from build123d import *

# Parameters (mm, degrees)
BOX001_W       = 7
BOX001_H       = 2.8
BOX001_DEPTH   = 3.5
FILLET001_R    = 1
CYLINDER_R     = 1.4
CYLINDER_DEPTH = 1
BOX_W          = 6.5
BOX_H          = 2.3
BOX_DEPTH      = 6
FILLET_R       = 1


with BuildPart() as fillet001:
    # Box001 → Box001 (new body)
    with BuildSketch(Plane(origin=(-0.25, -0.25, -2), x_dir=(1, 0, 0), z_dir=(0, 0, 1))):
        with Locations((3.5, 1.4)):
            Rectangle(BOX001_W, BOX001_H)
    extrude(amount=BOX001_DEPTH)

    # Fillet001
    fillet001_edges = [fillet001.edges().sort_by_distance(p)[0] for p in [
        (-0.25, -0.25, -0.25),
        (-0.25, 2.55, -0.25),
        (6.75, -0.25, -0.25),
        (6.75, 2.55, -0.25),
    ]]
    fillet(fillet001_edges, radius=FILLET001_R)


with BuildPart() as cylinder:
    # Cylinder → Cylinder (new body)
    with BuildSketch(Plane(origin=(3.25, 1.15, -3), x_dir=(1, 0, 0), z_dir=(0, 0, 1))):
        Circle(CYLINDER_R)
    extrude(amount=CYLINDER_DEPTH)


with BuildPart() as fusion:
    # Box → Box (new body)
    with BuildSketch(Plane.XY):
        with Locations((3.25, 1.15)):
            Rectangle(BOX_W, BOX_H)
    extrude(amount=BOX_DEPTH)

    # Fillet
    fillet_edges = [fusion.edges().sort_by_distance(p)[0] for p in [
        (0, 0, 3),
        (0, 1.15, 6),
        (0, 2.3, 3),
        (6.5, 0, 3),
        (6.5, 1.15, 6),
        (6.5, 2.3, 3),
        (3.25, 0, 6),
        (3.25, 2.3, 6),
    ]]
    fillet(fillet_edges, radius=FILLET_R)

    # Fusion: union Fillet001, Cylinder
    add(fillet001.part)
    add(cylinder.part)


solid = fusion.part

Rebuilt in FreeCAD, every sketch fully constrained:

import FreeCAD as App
import Part
import Sketcher

V = App.Vector
Q = App.Units.Quantity


def edges_at(feature, points):
    """Names of the edges that pass closest to the given points."""
    edges = feature.Shape.Edges
    near = lambda p: min(range(len(edges)), key=lambda i: edges[i].distToShape(Part.Vertex(*p))[0])
    return sorted({f"Edge{near(p) + 1}" for p in points})

doc = App.newDocument("Part")
body = doc.addObject("PartDesign::Body", "Body")

sketch1 = body.newObject("Sketcher::SketchObject", "Sketch")
sketch1.AttachmentSupport = (doc.getObject("XY_Plane"), [""])
sketch1.MapMode = "FlatFace"
sketch1.AttachmentOffset = App.Placement(V(0, 0, -2), App.Rotation())
sketch1.addGeometry([
    Part.LineSegment(V(-0.2, 2.5, 0), V(-0.2, -0.2, 0)),
    Part.LineSegment(V(-0.2, -0.2, 0), V(6.8, -0.2, 0)),
    Part.LineSegment(V(6.8, -0.2, 0), V(6.8, 2.5, 0)),
    Part.LineSegment(V(6.8, 2.5, 0), V(-0.2, 2.5, 0)),
], False)
sketch1.addConstraint([
    Sketcher.Constraint("Coincident", 0, 2, 1, 1),
    Sketcher.Constraint("Coincident", 1, 2, 2, 1),
    Sketcher.Constraint("Coincident", 2, 2, 3, 1),
    Sketcher.Constraint("Coincident", 3, 2, 0, 1),
    Sketcher.Constraint("Vertical", 0),
    Sketcher.Constraint("Horizontal", 1),
    Sketcher.Constraint("Vertical", 2),
    Sketcher.Constraint("Horizontal", 3),
    Sketcher.Constraint("DistanceX", 1, 1, 1, 2, Q("7 mm")),
    Sketcher.Constraint("DistanceY", 0, 2, 0, 1, Q("2.8 mm")),
    Sketcher.Constraint("DistanceX", 0, 2, -1, 1, Q("0.25 mm")),
    Sketcher.Constraint("DistanceY", 0, 2, -1, 1, Q("0.25 mm")),
])
pad1 = body.newObject("PartDesign::Pad", "Pad")
pad1.Profile = sketch1
pad1.Length = 3.5
doc.recompute()

fillet = body.newObject("PartDesign::Fillet", "Fillet")
fillet.Base = (pad1, edges_at(pad1, [
    (-0.25, -0.25, -0.25),
    (-0.25, 2.55, -0.25),
    (6.75, -0.25, -0.25),
    (6.75, 2.55, -0.25),
]))
fillet.Radius = 1
body2 = doc.addObject("PartDesign::Body", "Body001")

sketch2 = body2.newObject("Sketcher::SketchObject", "Sketch001")
sketch2.AttachmentSupport = (doc.getObject("XY_Plane001"), [""])
sketch2.MapMode = "FlatFace"
sketch2.AttachmentOffset = App.Placement(V(0, 0, -3), App.Rotation())
sketch2.addGeometry(Part.Circle(V(3.2, 1.1, 0), V(0, 0, 1), 1.4), False)
sketch2.addConstraint([
    Sketcher.Constraint("Diameter", 0, Q("2.8 mm")),
    Sketcher.Constraint("DistanceX", -1, 1, 0, 3, Q("3.25 mm")),
    Sketcher.Constraint("DistanceY", -1, 1, 0, 3, Q("1.15 mm")),
])
pad2 = body2.newObject("PartDesign::Pad", "Pad001")
pad2.Profile = sketch2
pad2.Length = 1
body3 = doc.addObject("PartDesign::Body", "Body002")

sketch3 = body3.newObject("Sketcher::SketchObject", "Sketch002")
sketch3.AttachmentSupport = (doc.getObject("XY_Plane002"), [""])
sketch3.MapMode = "FlatFace"
sketch3.addGeometry([
    Part.LineSegment(V(0, 2.3, 0), V(0, 0, 0)),
    Part.LineSegment(V(0, 0, 0), V(6.5, 0, 0)),
    Part.LineSegment(V(6.5, 0, 0), V(6.5, 2.3, 0)),
    Part.LineSegment(V(6.5, 2.3, 0), V(0, 2.3, 0)),
], False)
sketch3.addConstraint([
    Sketcher.Constraint("Coincident", 0, 2, 1, 1),
    Sketcher.Constraint("Coincident", 1, 2, 2, 1),
    Sketcher.Constraint("Coincident", 2, 2, 3, 1),
    Sketcher.Constraint("Coincident", 3, 2, 0, 1),
    Sketcher.Constraint("Vertical", 0),
    Sketcher.Constraint("Horizontal", 1),
    Sketcher.Constraint("Vertical", 2),
    Sketcher.Constraint("Horizontal", 3),
    Sketcher.Constraint("Coincident", 0, 2, -1, 1),
    Sketcher.Constraint("DistanceX", 1, 1, 1, 2, Q("6.5 mm")),
    Sketcher.Constraint("DistanceY", 0, 2, 0, 1, Q("2.3 mm")),
])
pad3 = body3.newObject("PartDesign::Pad", "Pad002")
pad3.Profile = sketch3
pad3.Length = 6
doc.recompute()

fillet2 = body3.newObject("PartDesign::Fillet", "Fillet001")
fillet2.Base = (pad3, edges_at(pad3, [
    (0, 0, 3),
    (0, 1.15, 6),
    (0, 2.3, 3),
    (6.5, 0, 3),
    (6.5, 1.15, 6),
    (6.5, 2.3, 3),
    (3.25, 0, 6),
    (3.25, 2.3, 6),
]))
fillet2.Radius = 1
doc.recompute()

boolean = body3.newObject("PartDesign::Boolean", "Boolean")
boolean.Type = "Fuse"
boolean.addObjects([body])
doc.recompute()

boolean2 = body3.newObject("PartDesign::Boolean", "Boolean001")
boolean2.Type = "Fuse"
boolean2.addObjects([body2])

doc.recompute()
